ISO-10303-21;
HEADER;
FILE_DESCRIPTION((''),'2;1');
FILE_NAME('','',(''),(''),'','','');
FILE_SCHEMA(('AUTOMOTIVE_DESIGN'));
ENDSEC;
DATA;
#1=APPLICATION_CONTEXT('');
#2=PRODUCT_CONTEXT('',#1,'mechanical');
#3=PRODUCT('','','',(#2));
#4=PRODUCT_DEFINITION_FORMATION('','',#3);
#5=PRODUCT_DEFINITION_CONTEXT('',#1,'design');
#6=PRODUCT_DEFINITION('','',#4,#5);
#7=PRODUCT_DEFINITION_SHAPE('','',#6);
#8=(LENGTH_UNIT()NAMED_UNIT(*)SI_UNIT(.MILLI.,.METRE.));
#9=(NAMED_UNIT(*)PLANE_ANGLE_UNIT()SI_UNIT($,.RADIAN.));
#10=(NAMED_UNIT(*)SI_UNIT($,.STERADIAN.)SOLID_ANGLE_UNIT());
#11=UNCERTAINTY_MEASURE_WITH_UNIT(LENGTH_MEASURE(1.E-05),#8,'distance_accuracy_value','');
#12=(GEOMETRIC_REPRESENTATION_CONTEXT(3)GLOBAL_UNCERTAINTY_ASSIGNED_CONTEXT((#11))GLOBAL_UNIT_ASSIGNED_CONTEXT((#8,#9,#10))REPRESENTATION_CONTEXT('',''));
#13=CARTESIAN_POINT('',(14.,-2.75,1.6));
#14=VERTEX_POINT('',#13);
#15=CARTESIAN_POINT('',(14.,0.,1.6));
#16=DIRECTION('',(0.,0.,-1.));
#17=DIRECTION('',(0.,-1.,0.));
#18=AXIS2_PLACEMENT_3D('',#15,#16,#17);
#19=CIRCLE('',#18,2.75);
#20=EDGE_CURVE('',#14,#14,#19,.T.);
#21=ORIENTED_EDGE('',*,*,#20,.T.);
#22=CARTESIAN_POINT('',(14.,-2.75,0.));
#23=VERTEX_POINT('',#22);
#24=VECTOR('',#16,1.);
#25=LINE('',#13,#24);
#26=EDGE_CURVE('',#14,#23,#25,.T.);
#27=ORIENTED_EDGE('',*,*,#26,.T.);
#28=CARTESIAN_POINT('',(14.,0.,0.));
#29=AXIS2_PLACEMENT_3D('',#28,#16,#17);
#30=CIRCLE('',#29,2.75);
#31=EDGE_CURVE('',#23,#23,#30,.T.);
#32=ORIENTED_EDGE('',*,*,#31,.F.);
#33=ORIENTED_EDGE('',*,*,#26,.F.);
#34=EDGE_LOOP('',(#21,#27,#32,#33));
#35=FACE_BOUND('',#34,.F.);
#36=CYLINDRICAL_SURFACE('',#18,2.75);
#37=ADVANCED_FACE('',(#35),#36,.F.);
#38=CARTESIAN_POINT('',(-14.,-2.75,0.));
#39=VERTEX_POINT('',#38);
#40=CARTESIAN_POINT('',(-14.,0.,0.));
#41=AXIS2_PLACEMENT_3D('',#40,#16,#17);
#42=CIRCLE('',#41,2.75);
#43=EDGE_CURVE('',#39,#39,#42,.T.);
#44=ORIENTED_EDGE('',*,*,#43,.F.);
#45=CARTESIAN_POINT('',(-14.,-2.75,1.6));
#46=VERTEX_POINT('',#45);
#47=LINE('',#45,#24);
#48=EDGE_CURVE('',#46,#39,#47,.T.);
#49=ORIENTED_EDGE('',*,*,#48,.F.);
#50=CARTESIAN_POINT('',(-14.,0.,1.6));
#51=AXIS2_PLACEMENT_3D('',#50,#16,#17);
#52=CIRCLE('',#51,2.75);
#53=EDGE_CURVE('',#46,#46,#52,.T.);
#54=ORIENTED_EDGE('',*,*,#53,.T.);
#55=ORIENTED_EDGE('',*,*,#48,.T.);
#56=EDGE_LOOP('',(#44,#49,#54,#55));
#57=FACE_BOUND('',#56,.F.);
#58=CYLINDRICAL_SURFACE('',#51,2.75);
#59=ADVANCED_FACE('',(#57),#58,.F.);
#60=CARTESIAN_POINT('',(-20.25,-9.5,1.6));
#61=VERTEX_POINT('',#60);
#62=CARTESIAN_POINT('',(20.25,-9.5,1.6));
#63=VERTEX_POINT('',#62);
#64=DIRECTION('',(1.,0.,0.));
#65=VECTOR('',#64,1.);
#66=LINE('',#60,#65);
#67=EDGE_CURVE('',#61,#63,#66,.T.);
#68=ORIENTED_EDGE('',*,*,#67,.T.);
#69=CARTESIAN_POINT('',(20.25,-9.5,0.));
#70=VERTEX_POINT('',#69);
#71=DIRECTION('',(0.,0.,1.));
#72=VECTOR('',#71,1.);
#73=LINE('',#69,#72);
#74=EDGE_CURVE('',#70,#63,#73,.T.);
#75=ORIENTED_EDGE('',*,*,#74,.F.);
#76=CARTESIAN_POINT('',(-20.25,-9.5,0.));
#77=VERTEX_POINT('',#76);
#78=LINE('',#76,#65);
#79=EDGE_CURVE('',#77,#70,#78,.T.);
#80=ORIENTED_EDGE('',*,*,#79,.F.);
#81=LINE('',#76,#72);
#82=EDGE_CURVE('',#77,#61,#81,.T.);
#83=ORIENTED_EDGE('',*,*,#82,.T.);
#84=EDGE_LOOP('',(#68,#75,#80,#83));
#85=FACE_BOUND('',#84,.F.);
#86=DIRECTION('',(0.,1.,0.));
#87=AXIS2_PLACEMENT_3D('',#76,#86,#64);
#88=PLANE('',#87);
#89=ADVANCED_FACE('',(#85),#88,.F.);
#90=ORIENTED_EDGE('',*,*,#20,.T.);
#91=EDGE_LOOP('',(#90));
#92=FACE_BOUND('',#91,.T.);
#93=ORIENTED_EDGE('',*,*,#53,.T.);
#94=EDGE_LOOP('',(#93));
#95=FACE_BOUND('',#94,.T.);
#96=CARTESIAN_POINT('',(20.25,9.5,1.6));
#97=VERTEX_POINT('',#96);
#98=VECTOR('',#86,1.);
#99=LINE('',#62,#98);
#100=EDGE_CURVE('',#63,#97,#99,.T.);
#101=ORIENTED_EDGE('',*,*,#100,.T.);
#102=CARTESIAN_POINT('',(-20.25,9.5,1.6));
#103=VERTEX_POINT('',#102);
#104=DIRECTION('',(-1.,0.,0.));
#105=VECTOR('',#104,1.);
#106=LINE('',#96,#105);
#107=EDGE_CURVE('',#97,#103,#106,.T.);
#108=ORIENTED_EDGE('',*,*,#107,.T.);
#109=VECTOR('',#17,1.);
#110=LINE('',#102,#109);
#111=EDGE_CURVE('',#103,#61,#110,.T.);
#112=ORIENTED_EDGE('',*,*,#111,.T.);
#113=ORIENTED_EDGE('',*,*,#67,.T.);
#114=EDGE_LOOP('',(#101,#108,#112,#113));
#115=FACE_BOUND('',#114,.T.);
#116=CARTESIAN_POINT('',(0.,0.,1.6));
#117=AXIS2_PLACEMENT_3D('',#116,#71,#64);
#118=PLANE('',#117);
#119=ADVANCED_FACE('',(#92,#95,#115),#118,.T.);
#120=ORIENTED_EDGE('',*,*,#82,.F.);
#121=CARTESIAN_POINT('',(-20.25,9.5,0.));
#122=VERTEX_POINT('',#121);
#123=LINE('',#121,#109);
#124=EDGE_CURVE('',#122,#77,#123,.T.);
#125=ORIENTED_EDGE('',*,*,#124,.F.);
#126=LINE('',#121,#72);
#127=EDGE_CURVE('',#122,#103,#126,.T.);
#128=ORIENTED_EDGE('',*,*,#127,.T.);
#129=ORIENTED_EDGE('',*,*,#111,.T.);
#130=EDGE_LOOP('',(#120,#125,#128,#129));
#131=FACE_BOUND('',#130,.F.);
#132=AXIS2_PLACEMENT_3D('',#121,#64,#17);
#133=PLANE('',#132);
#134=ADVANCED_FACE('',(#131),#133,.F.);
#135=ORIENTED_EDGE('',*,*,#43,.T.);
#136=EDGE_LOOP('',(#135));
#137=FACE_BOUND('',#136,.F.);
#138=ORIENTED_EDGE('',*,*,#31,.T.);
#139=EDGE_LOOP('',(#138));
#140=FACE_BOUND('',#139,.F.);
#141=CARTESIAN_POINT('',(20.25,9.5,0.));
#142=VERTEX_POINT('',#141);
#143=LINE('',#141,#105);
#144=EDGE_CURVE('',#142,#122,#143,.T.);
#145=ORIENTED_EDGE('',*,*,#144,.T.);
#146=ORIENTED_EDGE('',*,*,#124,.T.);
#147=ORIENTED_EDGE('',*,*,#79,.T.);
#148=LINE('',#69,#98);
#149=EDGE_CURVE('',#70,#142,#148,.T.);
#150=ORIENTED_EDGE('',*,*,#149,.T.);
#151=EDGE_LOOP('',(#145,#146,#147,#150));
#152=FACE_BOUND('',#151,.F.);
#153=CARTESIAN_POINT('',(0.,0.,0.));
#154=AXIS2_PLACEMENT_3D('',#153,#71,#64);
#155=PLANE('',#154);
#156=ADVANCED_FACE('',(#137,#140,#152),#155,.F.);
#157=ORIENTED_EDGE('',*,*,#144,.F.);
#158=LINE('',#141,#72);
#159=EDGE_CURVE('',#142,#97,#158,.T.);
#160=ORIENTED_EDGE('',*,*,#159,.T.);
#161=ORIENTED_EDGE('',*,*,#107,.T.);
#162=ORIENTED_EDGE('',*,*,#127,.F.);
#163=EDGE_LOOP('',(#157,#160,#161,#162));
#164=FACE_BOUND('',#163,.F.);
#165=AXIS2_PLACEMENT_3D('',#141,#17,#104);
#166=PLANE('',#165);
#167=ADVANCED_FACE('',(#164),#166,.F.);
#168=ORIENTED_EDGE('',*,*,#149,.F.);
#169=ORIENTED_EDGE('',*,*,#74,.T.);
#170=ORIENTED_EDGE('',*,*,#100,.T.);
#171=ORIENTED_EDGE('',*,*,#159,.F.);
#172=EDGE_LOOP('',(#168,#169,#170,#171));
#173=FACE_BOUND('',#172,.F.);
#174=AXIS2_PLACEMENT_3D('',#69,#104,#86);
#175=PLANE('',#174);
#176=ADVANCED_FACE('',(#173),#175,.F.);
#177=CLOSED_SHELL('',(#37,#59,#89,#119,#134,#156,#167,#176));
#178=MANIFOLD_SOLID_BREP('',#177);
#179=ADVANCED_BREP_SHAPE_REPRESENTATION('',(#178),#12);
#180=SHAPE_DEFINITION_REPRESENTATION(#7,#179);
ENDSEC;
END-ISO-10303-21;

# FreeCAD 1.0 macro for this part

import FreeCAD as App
import Part
import Sketcher

V = App.Vector


def add_polygon(sketch, points):
    """Adds a closed chain of lines whose ends are joined by coincident constraints."""
    first, n = sketch.GeometryCount, len(points)
    for a, b in zip(points, points[1:] + points[:1]):
        sketch.addGeometry(Part.LineSegment(App.Vector(*a, 0), App.Vector(*b, 0)), False)
    for i in range(n):
        sketch.addConstraint(Sketcher.Constraint("Coincident", first + i, 2, first + (i + 1) % n, 1))

doc = App.newDocument("Part")
params = doc.addObject("Spreadsheet::Sheet", "Params")
for row, (alias, value) in enumerate([
    ("sketch1_height", "19 mm"),
    ("sketch1_width", "40.5 mm"),
    ("pad1_length", "1.6 mm"),
    ("sketch2_diameter", "5.5 mm"),
    ("hole_diameter", "5.5 mm"),
    ("hole_depth", "8 mm"),
], start=1):
    params.set(f"A{row}", alias)
    params.set(f"B{row}", "=" + value)
    params.setAlias(f"B{row}", alias)

body = doc.addObject("PartDesign::Body", "Body")

sketch1 = doc.addObject("Sketcher::SketchObject", "Sketch")
body.addObject(sketch1)
sketch1.AttachmentSupport = (doc.XY_Plane, [""])
sketch1.MapMode = "FlatFace"
add_polygon(sketch1, [(-20.25, 9.5), (-20.25, -9.5), (20.25, -9.5), (20.25, 9.5)])
sketch1.addConstraint([
    Sketcher.Constraint("Vertical", 0),
    Sketcher.Constraint("Horizontal", 1),
    Sketcher.Constraint("Vertical", 2),
    Sketcher.Constraint("Horizontal", 3),
    Sketcher.Constraint("Symmetric", 0, 2, 2, 2, -1, 1),
    Sketcher.Constraint("DistanceY", 0, 2, 0, 1, 19.0),
    Sketcher.Constraint("DistanceX", 1, 1, 1, 2, 40.5),
])
sketch1.setExpression("Constraints[9]", "Params.sketch1_height")
sketch1.setExpression("Constraints[10]", "Params.sketch1_width")
pad1 = doc.addObject("PartDesign::Pad", "Pad")
body.addObject(pad1)
pad1.Profile = sketch1
pad1.setExpression("Length", "Params.pad1_length")

sketch2 = doc.addObject("Sketcher::SketchObject", "Sketch001")
body.addObject(sketch2)
sketch2.AttachmentSupport = (doc.XY_Plane, [""])
sketch2.MapMode = "FlatFace"
sketch2.AttachmentOffset = App.Placement(V(0, 0, 1.6), App.Rotation())
sketch2.addGeometry([
    Part.Circle(V(-14, 0, 0), V(0, 0, 1), 2.75),
    Part.Circle(V(14, 0, 0), V(0, 0, 1), 2.75),
], False)
sketch2.addConstraint([
    Sketcher.Constraint("Equal", 0, 1),
    Sketcher.Constraint("Symmetric", 0, 3, 1, 3, -1, 1),
    Sketcher.Constraint("PointOnObject", 0, 3, -1),
    Sketcher.Constraint("Diameter", 0, 5.5),
    Sketcher.Constraint("DistanceX", 0, 3, -1, 1, 14.0),
])
sketch2.setExpression("Constraints[3]", "Params.sketch2_diameter")
doc.recompute()
hole = doc.addObject("PartDesign::Hole", "Hole")
body.addObject(hole)
hole.Profile = sketch2
hole.ThreadType = "None"
hole.setExpression("Diameter", "Params.hole_diameter")
hole.DepthType = "Dimension"
hole.setExpression("Depth", "Params.hole_depth")
hole.DrillPoint = "Angled"
hole.DrillPointAngle = 118

doc.recompute()
